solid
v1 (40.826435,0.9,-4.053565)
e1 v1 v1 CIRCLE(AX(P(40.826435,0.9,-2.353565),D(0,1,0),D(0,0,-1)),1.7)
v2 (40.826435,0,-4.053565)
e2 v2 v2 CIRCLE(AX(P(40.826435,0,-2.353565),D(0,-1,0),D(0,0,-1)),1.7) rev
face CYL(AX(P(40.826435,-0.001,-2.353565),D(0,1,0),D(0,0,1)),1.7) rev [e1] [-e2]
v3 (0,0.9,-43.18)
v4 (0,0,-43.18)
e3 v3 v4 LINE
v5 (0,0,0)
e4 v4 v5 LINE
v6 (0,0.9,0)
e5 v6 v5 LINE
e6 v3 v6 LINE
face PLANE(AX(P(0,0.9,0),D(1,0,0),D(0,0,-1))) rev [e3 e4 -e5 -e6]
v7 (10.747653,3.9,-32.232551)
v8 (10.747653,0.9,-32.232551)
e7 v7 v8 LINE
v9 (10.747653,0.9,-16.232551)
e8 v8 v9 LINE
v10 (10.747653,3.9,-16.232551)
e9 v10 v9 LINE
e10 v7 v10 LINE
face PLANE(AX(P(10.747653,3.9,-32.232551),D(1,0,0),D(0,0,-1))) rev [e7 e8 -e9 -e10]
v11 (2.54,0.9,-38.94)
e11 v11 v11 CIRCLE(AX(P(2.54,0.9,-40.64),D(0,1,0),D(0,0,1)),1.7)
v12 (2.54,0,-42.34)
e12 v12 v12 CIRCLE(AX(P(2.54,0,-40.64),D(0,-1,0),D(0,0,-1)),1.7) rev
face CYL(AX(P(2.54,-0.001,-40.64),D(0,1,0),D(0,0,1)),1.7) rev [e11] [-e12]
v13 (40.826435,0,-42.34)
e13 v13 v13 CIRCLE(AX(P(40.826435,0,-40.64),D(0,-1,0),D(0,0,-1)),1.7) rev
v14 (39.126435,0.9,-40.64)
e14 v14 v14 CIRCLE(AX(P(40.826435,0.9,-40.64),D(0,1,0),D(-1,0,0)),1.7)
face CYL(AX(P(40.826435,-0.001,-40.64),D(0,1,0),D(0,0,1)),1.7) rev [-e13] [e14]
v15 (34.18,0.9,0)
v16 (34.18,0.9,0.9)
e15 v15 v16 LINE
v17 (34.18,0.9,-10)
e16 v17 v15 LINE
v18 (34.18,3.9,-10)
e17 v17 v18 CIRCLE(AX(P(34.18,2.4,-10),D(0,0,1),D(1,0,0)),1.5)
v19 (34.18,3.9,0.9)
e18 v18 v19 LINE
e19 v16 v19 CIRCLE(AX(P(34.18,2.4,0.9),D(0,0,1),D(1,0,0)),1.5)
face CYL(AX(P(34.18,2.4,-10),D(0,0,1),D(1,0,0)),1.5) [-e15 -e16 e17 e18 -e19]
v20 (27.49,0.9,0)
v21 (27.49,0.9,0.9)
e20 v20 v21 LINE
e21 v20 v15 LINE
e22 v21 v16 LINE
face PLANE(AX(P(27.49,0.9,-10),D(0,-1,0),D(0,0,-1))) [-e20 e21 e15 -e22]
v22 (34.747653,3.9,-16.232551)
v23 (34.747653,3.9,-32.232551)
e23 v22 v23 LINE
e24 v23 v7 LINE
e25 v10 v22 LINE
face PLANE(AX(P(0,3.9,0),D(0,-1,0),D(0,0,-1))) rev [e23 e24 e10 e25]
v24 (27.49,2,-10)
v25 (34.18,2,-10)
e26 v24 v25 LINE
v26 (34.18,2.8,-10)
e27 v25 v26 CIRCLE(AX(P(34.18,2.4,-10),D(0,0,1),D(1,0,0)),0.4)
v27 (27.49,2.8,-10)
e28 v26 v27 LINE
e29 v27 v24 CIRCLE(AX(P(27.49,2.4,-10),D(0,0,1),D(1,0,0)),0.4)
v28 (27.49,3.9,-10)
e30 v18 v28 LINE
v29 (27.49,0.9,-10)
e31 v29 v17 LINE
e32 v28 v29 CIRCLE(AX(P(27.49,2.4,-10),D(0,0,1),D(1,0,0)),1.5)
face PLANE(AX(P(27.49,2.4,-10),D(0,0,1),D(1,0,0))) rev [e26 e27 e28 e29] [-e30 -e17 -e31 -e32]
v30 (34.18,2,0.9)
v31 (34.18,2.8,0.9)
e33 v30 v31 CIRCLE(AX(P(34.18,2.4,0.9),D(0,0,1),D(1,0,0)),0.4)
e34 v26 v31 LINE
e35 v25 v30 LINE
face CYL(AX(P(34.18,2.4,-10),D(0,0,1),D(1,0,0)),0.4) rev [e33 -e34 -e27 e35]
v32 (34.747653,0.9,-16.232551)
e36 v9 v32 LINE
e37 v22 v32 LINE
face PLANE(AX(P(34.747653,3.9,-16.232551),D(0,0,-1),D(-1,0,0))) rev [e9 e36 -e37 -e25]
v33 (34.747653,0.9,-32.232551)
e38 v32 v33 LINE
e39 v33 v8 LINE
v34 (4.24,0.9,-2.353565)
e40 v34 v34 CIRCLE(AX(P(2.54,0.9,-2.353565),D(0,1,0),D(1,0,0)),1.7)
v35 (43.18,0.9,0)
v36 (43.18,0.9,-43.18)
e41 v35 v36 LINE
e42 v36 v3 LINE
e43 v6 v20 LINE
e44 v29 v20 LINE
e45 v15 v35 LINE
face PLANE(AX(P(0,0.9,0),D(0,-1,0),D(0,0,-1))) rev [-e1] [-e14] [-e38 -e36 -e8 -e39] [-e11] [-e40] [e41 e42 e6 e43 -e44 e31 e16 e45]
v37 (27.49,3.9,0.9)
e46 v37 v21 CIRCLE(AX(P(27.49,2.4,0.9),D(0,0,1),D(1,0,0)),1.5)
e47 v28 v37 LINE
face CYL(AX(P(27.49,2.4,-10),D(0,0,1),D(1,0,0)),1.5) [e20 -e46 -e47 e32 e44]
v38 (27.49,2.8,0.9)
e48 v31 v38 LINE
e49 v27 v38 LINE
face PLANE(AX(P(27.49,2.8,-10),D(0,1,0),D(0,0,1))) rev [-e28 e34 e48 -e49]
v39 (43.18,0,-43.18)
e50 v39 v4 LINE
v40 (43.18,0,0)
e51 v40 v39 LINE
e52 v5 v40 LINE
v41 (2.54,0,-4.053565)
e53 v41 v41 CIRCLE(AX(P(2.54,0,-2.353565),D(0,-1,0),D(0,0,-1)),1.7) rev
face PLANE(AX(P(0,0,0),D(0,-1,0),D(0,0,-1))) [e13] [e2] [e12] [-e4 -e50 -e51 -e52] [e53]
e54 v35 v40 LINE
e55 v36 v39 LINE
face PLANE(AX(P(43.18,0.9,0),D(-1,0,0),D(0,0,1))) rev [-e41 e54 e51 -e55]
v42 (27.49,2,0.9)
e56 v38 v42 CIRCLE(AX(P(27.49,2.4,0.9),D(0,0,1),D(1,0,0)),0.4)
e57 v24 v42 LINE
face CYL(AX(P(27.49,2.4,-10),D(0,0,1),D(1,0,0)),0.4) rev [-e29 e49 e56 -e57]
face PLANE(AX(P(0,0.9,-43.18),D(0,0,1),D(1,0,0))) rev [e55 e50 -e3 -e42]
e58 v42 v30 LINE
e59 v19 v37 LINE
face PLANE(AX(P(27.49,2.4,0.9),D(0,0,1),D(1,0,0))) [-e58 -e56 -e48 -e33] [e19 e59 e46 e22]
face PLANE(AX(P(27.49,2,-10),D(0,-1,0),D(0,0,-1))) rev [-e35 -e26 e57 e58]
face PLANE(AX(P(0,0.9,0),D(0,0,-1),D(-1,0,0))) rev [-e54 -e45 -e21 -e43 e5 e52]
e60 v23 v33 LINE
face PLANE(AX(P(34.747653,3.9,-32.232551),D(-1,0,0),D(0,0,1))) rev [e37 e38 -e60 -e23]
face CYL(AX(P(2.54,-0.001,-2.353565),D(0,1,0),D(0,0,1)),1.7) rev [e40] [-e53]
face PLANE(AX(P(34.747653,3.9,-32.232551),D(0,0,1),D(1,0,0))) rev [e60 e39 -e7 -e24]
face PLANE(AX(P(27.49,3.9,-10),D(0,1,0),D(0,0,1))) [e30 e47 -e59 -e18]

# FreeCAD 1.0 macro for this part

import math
import FreeCAD as App
import Part
import Sketcher
Q = App.Units.Quantity


def add_polygon(sketch, points):
    """Adds a closed chain of lines whose ends are joined by coincident constraints."""
    first, n = sketch.GeometryCount, len(points)
    for a, b in zip(points, points[1:] + points[:1]):
        sketch.addGeometry(Part.LineSegment(App.Vector(*a, 0), App.Vector(*b, 0)), False)
    for i in range(n):
        sketch.addConstraint(Sketcher.Constraint("Coincident", first + i, 2, first + (i + 1) % n, 1))

doc = App.newDocument("Part")
params = doc.addObject("Spreadsheet::Sheet", "Params")
for row, (alias, value) in enumerate([
    ("sketch1_width", "43.18 mm"),
    ("pad1_length", "0.9 mm"),
    ("sketch2_diameter", "3.4 mm"),
    ("pocket1_length", "0.9 mm"),
    ("sketch3_radius", "1.5 mm"),
    ("sketch3_radius2", "0.4 mm"),
    ("sketch3_width", "6.69 mm"),
    ("pad2_length", "0.9 mm"),
    ("pad2_length2", "10 mm"),
    ("sketch4_width", "24 mm"),
    ("sketch4_height", "16 mm"),
    ("pad3_length", "3 mm"),
], start=1):
    params.set(f"A{row}", alias)
    params.set(f"B{row}", "=" + value)
    params.setAlias(f"B{row}", alias)

body = doc.addObject("PartDesign::Body", "Body")

sketch1 = body.newObject("Sketcher::SketchObject", "Sketch")
sketch1.AttachmentSupport = (doc.getObject("XZ_Plane"), [""])
sketch1.MapMode = "FlatFace"
add_polygon(sketch1, [(0, -43.18), (0, 0), (43.18, 0), (43.18, -43.18)])
sketch1.addConstraint(Sketcher.Constraint("Vertical", 0))
sketch1.addConstraint(Sketcher.Constraint("Horizontal", 1))
sketch1.addConstraint(Sketcher.Constraint("Vertical", 2))
sketch1.addConstraint(Sketcher.Constraint("Horizontal", 3))
sketch1.addConstraint(Sketcher.Constraint("Coincident", 0, 2, -1, 1))
sketch1.addConstraint(Sketcher.Constraint("Equal", 3, 0))
sketch1.addConstraint(Sketcher.Constraint("DistanceX", 1, 1, 1, 2, Q("43.18 mm")))
sketch1.setExpression("Constraints[10]", "Params.sketch1_width")
pad1 = body.newObject("PartDesign::Pad", "Pad")
pad1.Profile = sketch1
pad1.setExpression("Length", "Params.pad1_length")
pad1.Reversed = True

sketch2 = body.newObject("Sketcher::SketchObject", "Sketch001")
sketch2.AttachmentSupport = (doc.getObject("XZ_Plane"), [""])
sketch2.MapMode = "FlatFace"
sketch2.AttachmentOffset = App.Placement(App.Vector(0, 0, -0.9), App.Rotation())
sketch2.addGeometry(Part.Circle(App.Vector(2.54, -40.64, 0), App.Vector(0, 0, 1), 1.7), False)
sketch2.addConstraint(Sketcher.Constraint("Diameter", 0, Q("3.4 mm")))
sketch2.addConstraint(Sketcher.Constraint("DistanceX", -1, 1, 0, 3, Q("2.54 mm")))
sketch2.addConstraint(Sketcher.Constraint("DistanceY", 0, 3, -1, 1, Q("40.64 mm")))
sketch2.setExpression("Constraints[0]", "Params.sketch2_diameter")
pocket1 = body.newObject("PartDesign::Pocket", "Pocket")
pocket1.Profile = sketch2
pocket1.setExpression("Length", "Params.pocket1_length")
pocket1.Reversed = True
doc.recompute()

datumline = body.newObject("PartDesign::Line", "DatumLine")
datumline.Placement = App.Placement(App.Vector(21.683217, 0, -21.496783), App.Rotation(App.Vector(0, 0, 1), App.Vector(0, 1, 0)))
polarpattern = body.newObject("PartDesign::PolarPattern", "PolarPattern")
polarpattern.Originals = [pocket1]
polarpattern.Axis = (datumline, [""])
polarpattern.Angle = 360
polarpattern.Occurrences = 4
body.Tip = polarpattern

sketch3 = body.newObject("Sketcher::SketchObject", "Sketch002")
sketch3.AttachmentSupport = (doc.getObject("XY_Plane"), [""])
sketch3.MapMode = "FlatFace"
sketch3.addGeometry(Part.LineSegment(App.Vector(34.18, 3.9, 0), App.Vector(27.49, 3.9, 0)), False)
sketch3.addGeometry(Part.ArcOfCircle(Part.Circle(App.Vector(27.49, 2.4, 0), App.Vector(0, 0, 1), 1.5), math.radians(90), math.radians(270)), False)
sketch3.addGeometry(Part.LineSegment(App.Vector(27.49, 0.9, 0), App.Vector(34.18, 0.9, 0)), False)
sketch3.addGeometry(Part.ArcOfCircle(Part.Circle(App.Vector(34.18, 2.4, 0), App.Vector(0, 0, 1), 1.5), math.radians(-90), math.radians(90)), False)
sketch3.addGeometry(Part.LineSegment(App.Vector(27.49, 2.8, 0), App.Vector(34.18, 2.8, 0)), False)
sketch3.addGeometry(Part.ArcOfCircle(Part.Circle(App.Vector(34.18, 2.4, 0), App.Vector(0, 0, 1), 0.4), math.radians(-90), math.radians(90)), False)
sketch3.addGeometry(Part.LineSegment(App.Vector(34.18, 2, 0), App.Vector(27.49, 2, 0)), False)
sketch3.addGeometry(Part.ArcOfCircle(Part.Circle(App.Vector(27.49, 2.4, 0), App.Vector(0, 0, 1), 0.4), math.radians(90), math.radians(270)), False)
sketch3.addConstraint(Sketcher.Constraint("Tangent", 0, 2, 1, 1))
sketch3.addConstraint(Sketcher.Constraint("Tangent", 1, 2, 2, 1))
sketch3.addConstraint(Sketcher.Constraint("Tangent", 2, 2, 3, 1))
sketch3.addConstraint(Sketcher.Constraint("Tangent", 3, 2, 0, 1))
sketch3.addConstraint(Sketcher.Constraint("Tangent", 4, 2, 5, 2))
sketch3.addConstraint(Sketcher.Constraint("Tangent", 5, 1, 6, 1))
sketch3.addConstraint(Sketcher.Constraint("Tangent", 6, 2, 7, 2))
sketch3.addConstraint(Sketcher.Constraint("Tangent", 7, 1, 4, 1))
sketch3.addConstraint(Sketcher.Constraint("Horizontal", 0))
sketch3.addConstraint(Sketcher.Constraint("Horizontal", 2))
sketch3.addConstraint(Sketcher.Constraint("Horizontal", 4))
sketch3.addConstraint(Sketcher.Constraint("Horizontal", 6))
sketch3.addConstraint(Sketcher.Constraint("Coincident", 5, 3, 3, 3))
sketch3.addConstraint(Sketcher.Constraint("Vertical", 7, 3, 0, 2))
sketch3.addConstraint(Sketcher.Constraint("Radius", 1, Q("1.5 mm")))
sketch3.addConstraint(Sketcher.Constraint("Radius", 5, Q("0.4 mm")))
sketch3.addConstraint(Sketcher.Constraint("DistanceY", -1, 1, 5, 1, Q("2 mm")))
sketch3.addConstraint(Sketcher.Constraint("DistanceX", 0, 2, 0, 1, Q("6.69 mm")))
sketch3.addConstraint(Sketcher.Constraint("DistanceX", -1, 1, 1, 3, Q("27.49 mm")))
sketch3.setExpression("Constraints[14]", "Params.sketch3_radius")
sketch3.setExpression("Constraints[15]", "Params.sketch3_radius2")
sketch3.setExpression("Constraints[17]", "Params.sketch3_width")
pad2 = body.newObject("PartDesign::Pad", "Pad001")
pad2.Profile = sketch3
pad2.Type = "TwoLengths"
pad2.setExpression("Length", "Params.pad2_length")
pad2.setExpression("Length2", "Params.pad2_length2")

sketch4 = body.newObject("Sketcher::SketchObject", "Sketch003")
sketch4.AttachmentSupport = (doc.getObject("XZ_Plane"), [""])
sketch4.MapMode = "FlatFace"
sketch4.AttachmentOffset = App.Placement(App.Vector(0, 0, -0.9), App.Rotation())
add_polygon(sketch4, [(10.747653, -32.232551), (10.747653, -16.232551), (34.747653, -16.232551), (34.747653, -32.232551)])
sketch4.addConstraint(Sketcher.Constraint("Vertical", 0))
sketch4.addConstraint(Sketcher.Constraint("Horizontal", 1))
sketch4.addConstraint(Sketcher.Constraint("Vertical", 2))
sketch4.addConstraint(Sketcher.Constraint("Horizontal", 3))
sketch4.addConstraint(Sketcher.Constraint("DistanceX", 1, 1, 1, 2, Q("24 mm")))
sketch4.addConstraint(Sketcher.Constraint("DistanceY", 0, 1, 0, 2, Q("16 mm")))
sketch4.addConstraint(Sketcher.Constraint("DistanceY", 0, 2, -1, 1, Q("16.232551 mm")))
sketch4.addConstraint(Sketcher.Constraint("DistanceX", -1, 1, 0, 2, Q("10.747653 mm")))
sketch4.setExpression("Constraints[8]", "Params.sketch4_width")
sketch4.setExpression("Constraints[9]", "Params.sketch4_height")
pad3 = body.newObject("PartDesign::Pad", "Pad002")
pad3.Profile = sketch4
pad3.setExpression("Length", "Params.pad3_length")
pad3.Reversed = True

doc.recompute()
